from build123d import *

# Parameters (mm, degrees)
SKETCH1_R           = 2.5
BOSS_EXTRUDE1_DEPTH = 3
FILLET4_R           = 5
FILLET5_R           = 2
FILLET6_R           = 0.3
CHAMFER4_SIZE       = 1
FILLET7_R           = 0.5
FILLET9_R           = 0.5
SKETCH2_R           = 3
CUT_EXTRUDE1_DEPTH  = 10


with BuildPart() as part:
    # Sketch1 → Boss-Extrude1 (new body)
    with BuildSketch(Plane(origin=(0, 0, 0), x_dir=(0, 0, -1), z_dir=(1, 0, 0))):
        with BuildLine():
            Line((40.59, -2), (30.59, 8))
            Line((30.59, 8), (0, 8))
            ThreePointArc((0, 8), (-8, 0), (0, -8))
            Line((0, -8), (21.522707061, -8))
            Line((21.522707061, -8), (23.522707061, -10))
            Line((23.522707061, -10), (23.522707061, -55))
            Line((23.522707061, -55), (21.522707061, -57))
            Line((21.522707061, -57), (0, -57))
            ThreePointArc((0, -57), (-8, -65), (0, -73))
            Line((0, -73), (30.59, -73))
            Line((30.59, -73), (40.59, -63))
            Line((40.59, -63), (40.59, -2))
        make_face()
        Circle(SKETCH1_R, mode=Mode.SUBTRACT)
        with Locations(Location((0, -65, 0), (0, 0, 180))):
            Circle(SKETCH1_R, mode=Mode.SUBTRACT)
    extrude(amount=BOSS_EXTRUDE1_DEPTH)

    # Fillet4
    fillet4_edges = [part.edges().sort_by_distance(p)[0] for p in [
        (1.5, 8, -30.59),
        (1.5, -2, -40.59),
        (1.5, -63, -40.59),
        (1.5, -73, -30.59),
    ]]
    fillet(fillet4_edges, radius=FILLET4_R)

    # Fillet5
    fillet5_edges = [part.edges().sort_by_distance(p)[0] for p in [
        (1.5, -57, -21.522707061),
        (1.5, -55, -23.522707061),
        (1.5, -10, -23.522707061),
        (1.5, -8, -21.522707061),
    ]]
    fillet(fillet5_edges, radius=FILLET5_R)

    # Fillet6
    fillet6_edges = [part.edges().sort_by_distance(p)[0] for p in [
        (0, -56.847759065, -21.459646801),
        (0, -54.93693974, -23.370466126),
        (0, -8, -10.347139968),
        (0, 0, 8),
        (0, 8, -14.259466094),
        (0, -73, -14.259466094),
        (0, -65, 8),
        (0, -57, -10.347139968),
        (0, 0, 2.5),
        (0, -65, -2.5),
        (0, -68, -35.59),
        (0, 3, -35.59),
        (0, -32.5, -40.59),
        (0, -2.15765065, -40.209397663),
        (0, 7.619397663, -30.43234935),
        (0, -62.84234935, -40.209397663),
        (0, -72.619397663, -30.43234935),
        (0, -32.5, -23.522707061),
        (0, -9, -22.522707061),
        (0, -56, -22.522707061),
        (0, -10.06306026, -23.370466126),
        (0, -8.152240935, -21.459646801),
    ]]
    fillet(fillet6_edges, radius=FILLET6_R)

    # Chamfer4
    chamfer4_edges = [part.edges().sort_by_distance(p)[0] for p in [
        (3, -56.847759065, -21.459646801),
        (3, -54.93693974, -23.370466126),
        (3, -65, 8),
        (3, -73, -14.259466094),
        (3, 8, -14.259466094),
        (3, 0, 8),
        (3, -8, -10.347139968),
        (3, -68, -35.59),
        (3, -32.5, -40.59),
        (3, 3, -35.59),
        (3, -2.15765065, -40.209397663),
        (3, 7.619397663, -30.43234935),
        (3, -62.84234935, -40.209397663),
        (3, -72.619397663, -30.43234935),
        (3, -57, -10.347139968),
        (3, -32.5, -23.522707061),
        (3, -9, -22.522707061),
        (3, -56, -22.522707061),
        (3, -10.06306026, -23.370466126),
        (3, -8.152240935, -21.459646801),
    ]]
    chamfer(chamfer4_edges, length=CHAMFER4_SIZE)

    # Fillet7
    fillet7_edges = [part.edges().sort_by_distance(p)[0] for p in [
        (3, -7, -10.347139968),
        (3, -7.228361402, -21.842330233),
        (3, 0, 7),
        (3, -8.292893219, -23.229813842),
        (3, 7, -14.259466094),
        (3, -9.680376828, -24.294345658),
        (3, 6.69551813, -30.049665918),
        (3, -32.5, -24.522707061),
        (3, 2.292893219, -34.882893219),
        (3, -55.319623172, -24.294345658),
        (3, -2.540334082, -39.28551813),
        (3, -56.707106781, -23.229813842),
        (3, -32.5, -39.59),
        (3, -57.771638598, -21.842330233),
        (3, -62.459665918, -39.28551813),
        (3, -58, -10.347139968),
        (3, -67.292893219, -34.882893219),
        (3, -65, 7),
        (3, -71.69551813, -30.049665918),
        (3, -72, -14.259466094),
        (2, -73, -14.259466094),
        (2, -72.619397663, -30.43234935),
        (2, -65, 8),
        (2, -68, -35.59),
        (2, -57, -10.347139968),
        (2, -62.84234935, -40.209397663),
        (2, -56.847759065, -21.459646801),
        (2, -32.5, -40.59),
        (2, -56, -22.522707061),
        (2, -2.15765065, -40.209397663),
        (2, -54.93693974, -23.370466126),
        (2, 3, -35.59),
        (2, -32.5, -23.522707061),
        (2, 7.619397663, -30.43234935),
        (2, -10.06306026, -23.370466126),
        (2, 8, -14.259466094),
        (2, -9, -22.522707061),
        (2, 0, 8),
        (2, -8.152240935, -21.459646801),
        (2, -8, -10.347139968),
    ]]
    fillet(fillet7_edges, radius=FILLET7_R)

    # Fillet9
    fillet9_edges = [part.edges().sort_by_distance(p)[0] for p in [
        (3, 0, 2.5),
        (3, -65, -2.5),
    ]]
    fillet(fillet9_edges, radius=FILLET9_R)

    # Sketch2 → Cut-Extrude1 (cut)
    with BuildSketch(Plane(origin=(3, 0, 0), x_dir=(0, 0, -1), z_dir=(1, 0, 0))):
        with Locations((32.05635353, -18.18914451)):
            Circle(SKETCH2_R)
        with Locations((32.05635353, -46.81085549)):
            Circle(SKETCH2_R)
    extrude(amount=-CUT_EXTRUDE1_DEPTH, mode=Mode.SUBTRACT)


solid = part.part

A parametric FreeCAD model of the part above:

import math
import FreeCAD as App
import Part
import Sketcher
from FreeCAD import Vector


def edges_at(feature, points):
    """Names of the edges that pass closest to the given points."""
    edges = feature.Shape.Edges
    near = lambda p: min(range(len(edges)), key=lambda i: edges[i].distToShape(Part.Vertex(*p))[0])
    return sorted({f"Edge{near(p) + 1}" for p in points})

doc = App.newDocument("Part")
body = doc.addObject("PartDesign::Body", "Body")

# Sketch on YZ plane
sketch1 = doc.addObject("Sketcher::SketchObject", "Sketch")
body.addObject(sketch1)
sketch1.AttachmentSupport = (doc.YZ_Plane, [""])
sketch1.MapMode = "FlatFace"
sketch1.addGeometry([
    Part.LineSegment(Vector(-2, -40.6, 0), Vector(8, -30.6, 0)),  # 0
    Part.LineSegment(Vector(8, -30.6, 0), Vector(8, 0, 0)),  # 1
    Part.ArcOfCircle(Part.Circle(Vector(0, 0, 0), Vector(0, 0, 1), 8), math.radians(0), math.radians(180)),  # 2
    Part.LineSegment(Vector(-8, 0, 0), Vector(-8, -21.5, 0)),  # 3
    Part.LineSegment(Vector(-8, -21.5, 0), Vector(-10, -23.5, 0)),  # 4
    Part.LineSegment(Vector(-10, -23.5, 0), Vector(-55, -23.5, 0)),  # 5
    Part.LineSegment(Vector(-55, -23.5, 0), Vector(-57, -21.5, 0)),  # 6
    Part.LineSegment(Vector(-57, -21.5, 0), Vector(-57, 0, 0)),  # 7
    Part.ArcOfCircle(Part.Circle(Vector(-65, 0, 0), Vector(0, 0, 1), 8), math.radians(0), math.radians(180)),  # 8
    Part.LineSegment(Vector(-73, 0, 0), Vector(-73, -30.6, 0)),  # 9
    Part.LineSegment(Vector(-73, -30.6, 0), Vector(-63, -40.6, 0)),  # 10
    Part.LineSegment(Vector(-63, -40.6, 0), Vector(-2, -40.6, 0)),  # 11
    Part.Circle(Vector(-65, 0, 0), Vector(0, 0, 1), 2.5),  # 12
    Part.Circle(Vector(0, 0, 0), Vector(0, 0, 1), 2.5),  # 13
], False)
sketch1.addConstraint([
    Sketcher.Constraint("Coincident", 0, 2, 1, 1),
    Sketcher.Constraint("Tangent", 1, 2, 2, 1),
    Sketcher.Constraint("Tangent", 2, 2, 3, 1),
    Sketcher.Constraint("Coincident", 3, 2, 4, 1),
    Sketcher.Constraint("Coincident", 4, 2, 5, 1),
    Sketcher.Constraint("Coincident", 5, 2, 6, 1),
    Sketcher.Constraint("Coincident", 6, 2, 7, 1),
    Sketcher.Constraint("Tangent", 7, 2, 8, 1),
    Sketcher.Constraint("Tangent", 8, 2, 9, 1),
    Sketcher.Constraint("Coincident", 9, 2, 10, 1),
    Sketcher.Constraint("Coincident", 10, 2, 11, 1),
    Sketcher.Constraint("Coincident", 11, 2, 0, 1),
    Sketcher.Constraint("Vertical", 1),
    Sketcher.Constraint("Vertical", 3),
    Sketcher.Constraint("Horizontal", 5),
    Sketcher.Constraint("Vertical", 7),
    Sketcher.Constraint("Vertical", 9),
    Sketcher.Constraint("Horizontal", 11),
    Sketcher.Constraint("Coincident", 2, 3, -1, 1),
    Sketcher.Constraint("Coincident", 13, 3, -1, 1),
    Sketcher.Constraint("Coincident", 12, 3, 8, 3),
    Sketcher.Constraint("Equal", 2, 8),
    Sketcher.Constraint("Equal", 12, 13),
    Sketcher.Constraint("PointOnObject", 8, 3, -1),
    Sketcher.Constraint("Parallel", 0, 4),
    Sketcher.Constraint("Perpendicular", 4, 6),
    Sketcher.Constraint("Parallel", 6, 10),
    Sketcher.Constraint("Horizontal", 3, 2, 6, 2),
    Sketcher.Constraint("Horizontal", 0, 2, 9, 2),
    Sketcher.Constraint("Equal", 4, 6),
    Sketcher.Constraint("Diameter", 12, 5.0),
    Sketcher.Constraint("Radius", 2, 8.0),
    Sketcher.Constraint("DistanceX", 5, 2, 5, 1, 45.0),
    Sketcher.Constraint("DistanceX", 11, 1, 11, 2, 61.0),
    Sketcher.Constraint("DistanceX", 8, 3, -1, 1, 65.0),
    Sketcher.Constraint("DistanceY", 1, 1, 1, 2, 30.59),
    Sketcher.Constraint("DistanceY", 3, 2, 3, 1, 21.522707),
])
pad1 = doc.addObject("PartDesign::Pad", "Pad")
body.addObject(pad1)
pad1.Profile = sketch1
pad1.Length = 3
doc.recompute()

fillet = doc.addObject("PartDesign::Fillet", "Fillet")
body.addObject(fillet)
fillet.Base = (pad1, edges_at(pad1, [
    (1.5, 8, -30.59),
    (1.5, -2, -40.59),
    (1.5, -63, -40.59),
    (1.5, -73, -30.59),
]))
fillet.Radius = 5
doc.recompute()

fillet2 = doc.addObject("PartDesign::Fillet", "Fillet001")
body.addObject(fillet2)
fillet2.Base = (fillet, edges_at(fillet, [
    (1.5, -57, -21.523),
    (1.5, -55, -23.523),
    (1.5, -10, -23.523),
    (1.5, -8, -21.523),
]))
fillet2.Radius = 2
doc.recompute()

fillet3 = doc.addObject("PartDesign::Fillet", "Fillet002")
body.addObject(fillet3)
fillet3.Base = (fillet2, edges_at(fillet2, [
    (0, -56.848, -21.46),
    (0, -54.937, -23.37),
    (0, -8, -10.347),
    (0, 0, 8),
    (0, 8, -14.259),
    (0, -73, -14.259),
    (0, -65, 8),
    (0, -57, -10.347),
    (0, 0, 2.5),
    (0, -65, -2.5),
    (0, -68, -35.59),
    (0, 3, -35.59),
    (0, -32.5, -40.59),
    (0, -2.158, -40.209),
    (0, 7.619, -30.432),
    (0, -62.842, -40.209),
    (0, -72.619, -30.432),
    (0, -32.5, -23.523),
    (0, -9, -22.523),
    (0, -56, -22.523),
    (0, -10.063, -23.37),
    (0, -8.152, -21.46),
]))
fillet3.Radius = 0.3
doc.recompute()

chamfer = doc.addObject("PartDesign::Chamfer", "Chamfer")
body.addObject(chamfer)
chamfer.Base = (fillet3, edges_at(fillet3, [
    (3, -56.848, -21.46),
    (3, -54.937, -23.37),
    (3, -65, 8),
    (3, -73, -14.259),
    (3, 8, -14.259),
    (3, 0, 8),
    (3, -8, -10.347),
    (3, -68, -35.59),
    (3, -32.5, -40.59),
    (3, 3, -35.59),
    (3, -2.158, -40.209),
    (3, 7.619, -30.432),
    (3, -62.842, -40.209),
    (3, -72.619, -30.432),
    (3, -57, -10.347),
    (3, -32.5, -23.523),
    (3, -9, -22.523),
    (3, -56, -22.523),
    (3, -10.063, -23.37),
    (3, -8.152, -21.46),
]))
chamfer.Size = 1
doc.recompute()

fillet4 = doc.addObject("PartDesign::Fillet", "Fillet003")
body.addObject(fillet4)
fillet4.Base = (chamfer, edges_at(chamfer, [
    (3, -7, -10.347),
    (3, -7.228, -21.842),
    (3, 0, 7),
    (3, -8.293, -23.23),
    (3, 7, -14.259),
    (3, -9.68, -24.294),
    (3, 6.696, -30.05),
    (3, -32.5, -24.523),
    (3, 2.293, -34.883),
    (3, -55.32, -24.294),
    (3, -2.54, -39.286),
    (3, -56.707, -23.23),
    (3, -32.5, -39.59),
    (3, -57.772, -21.842),
    (3, -62.46, -39.286),
    (3, -58, -10.347),
    (3, -67.293, -34.883),
    (3, -65, 7),
    (3, -71.696, -30.05),
    (3, -72, -14.259),
    (2, -73, -14.259),
    (2, -72.619, -30.432),
    (2, -65, 8),
    (2, -68, -35.59),
    (2, -57, -10.347),
    (2, -62.842, -40.209),
    (2, -56.848, -21.46),
    (2, -32.5, -40.59),
    (2, -56, -22.523),
    (2, -2.158, -40.209),
    (2, -54.937, -23.37),
    (2, 3, -35.59),
    (2, -32.5, -23.523),
    (2, 7.619, -30.432),
    (2, -10.063, -23.37),
    (2, 8, -14.259),
    (2, -9, -22.523),
    (2, 0, 8),
    (2, -8.152, -21.46),
    (2, -8, -10.347),
]))
fillet4.Radius = 0.5
doc.recompute()

fillet5 = doc.addObject("PartDesign::Fillet", "Fillet004")
body.addObject(fillet5)
fillet5.Base = (fillet4, edges_at(fillet4, [(3, 0, 2.5), (3, -65, -2.5)]))
fillet5.Radius = 0.5

# Sketch on YZ plane
sketch2 = doc.addObject("Sketcher::SketchObject", "Sketch001")
body.addObject(sketch2)
sketch2.AttachmentSupport = (doc.YZ_Plane, [""])
sketch2.MapMode = "FlatFace"
sketch2.AttachmentOffset = App.Placement(Vector(0, 0, 3), App.Rotation())
sketch2.addGeometry([
    Part.Circle(Vector(-18.2, -32.1, 0), Vector(0, 0, 1), 3),
    Part.Circle(Vector(-46.8, -32.1, 0), Vector(0, 0, 1), 3),
], False)
sketch2.addConstraint([
    Sketcher.Constraint("Equal", 0, 1),
    Sketcher.Constraint("Horizontal", 0, 3, 1, 3),
    Sketcher.Constraint("Diameter", 0, 6.0),
    Sketcher.Constraint("DistanceX", 1, 3, 0, 3, 28.621711),
    Sketcher.Constraint("DistanceX", 0, 3, -1, 1, 18.189145),
    Sketcher.Constraint("DistanceY", 0, 3, -1, 1, 32.056354),
])
pocket1 = doc.addObject("PartDesign::Pocket", "Pocket")
body.addObject(pocket1)
pocket1.Profile = sketch2
pocket1.Length = 10

doc.recompute()
